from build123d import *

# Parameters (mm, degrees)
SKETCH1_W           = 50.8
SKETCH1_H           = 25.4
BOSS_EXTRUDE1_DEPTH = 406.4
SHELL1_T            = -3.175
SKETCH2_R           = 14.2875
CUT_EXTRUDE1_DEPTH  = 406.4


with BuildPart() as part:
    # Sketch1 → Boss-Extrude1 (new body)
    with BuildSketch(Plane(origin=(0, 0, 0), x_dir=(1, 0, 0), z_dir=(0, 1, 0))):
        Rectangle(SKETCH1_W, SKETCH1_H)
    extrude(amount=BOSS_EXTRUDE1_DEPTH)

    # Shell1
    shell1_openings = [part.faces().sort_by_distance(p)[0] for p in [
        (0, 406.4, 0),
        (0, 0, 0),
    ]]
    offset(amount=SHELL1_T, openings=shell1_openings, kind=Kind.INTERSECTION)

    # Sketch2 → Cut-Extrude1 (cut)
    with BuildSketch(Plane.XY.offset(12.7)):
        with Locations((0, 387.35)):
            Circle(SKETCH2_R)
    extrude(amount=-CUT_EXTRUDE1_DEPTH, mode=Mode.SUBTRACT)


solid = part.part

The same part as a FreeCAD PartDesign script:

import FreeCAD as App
import Part
import Sketcher

V = App.Vector
Q = App.Units.Quantity


def faces_at(feature, points):
    """Names of the faces that lie closest to the given points."""
    faces = feature.Shape.Faces
    near = lambda p: min(range(len(faces)), key=lambda i: faces[i].distToShape(Part.Vertex(*p))[0])
    return sorted({f"Face{near(p) + 1}" for p in points})

doc = App.newDocument("Part")
body = doc.addObject("PartDesign::Body", "Body")

sketch1 = body.newObject("Sketcher::SketchObject", "Sketch")
sketch1.AttachmentSupport = (doc.getObject("XZ_Plane"), [""])
sketch1.MapMode = "FlatFace"
sketch1.addGeometry([
    Part.LineSegment(V(-25, -13, 0), V(-25, 13, 0)),
    Part.LineSegment(V(-25, 13, 0), V(25, 13, 0)),
    Part.LineSegment(V(25, 13, 0), V(25, -13, 0)),
    Part.LineSegment(V(25, -13, 0), V(-25, -13, 0)),
], False)
sketch1.addConstraint([
    Sketcher.Constraint("Coincident", 0, 2, 1, 1),
    Sketcher.Constraint("Coincident", 1, 2, 2, 1),
    Sketcher.Constraint("Coincident", 2, 2, 3, 1),
    Sketcher.Constraint("Coincident", 3, 2, 0, 1),
    Sketcher.Constraint("Vertical", 0),
    Sketcher.Constraint("Horizontal", 1),
    Sketcher.Constraint("Vertical", 2),
    Sketcher.Constraint("Horizontal", 3),
    Sketcher.Constraint("Symmetric", 0, 2, 2, 2, -1, 1),
    Sketcher.Constraint("DistanceX", 1, 1, 1, 2, Q("2 in")),
    Sketcher.Constraint("DistanceY", 0, 1, 0, 2, Q("1 in")),
])
pad1 = body.newObject("PartDesign::Pad", "Pad")
pad1.Profile = sketch1
pad1.Length = Q("16 in")
pad1.Reversed = True
doc.recompute()

thickness = body.newObject("PartDesign::Thickness", "Thickness")
thickness.Base = (pad1, faces_at(pad1, [(0, 406.4, 0), (0, 0, 0)]))
thickness.Value = Q("0.125 in")
thickness.Reversed = True
thickness.Join = "Intersection"

sketch2 = body.newObject("Sketcher::SketchObject", "Sketch001")
sketch2.AttachmentSupport = (doc.getObject("XY_Plane"), [""])
sketch2.MapMode = "FlatFace"
sketch2.AttachmentOffset = App.Placement(V(0, 0, 0.5 * 25.4), App.Rotation())
sketch2.addGeometry(Part.Circle(V(0, 387, 0), V(0, 0, 1), 14), False)
sketch2.addConstraint([
    Sketcher.Constraint("PointOnObject", 0, 3, -2),
    Sketcher.Constraint("Diameter", 0, Q("1.125 in")),
    Sketcher.Constraint("DistanceY", -1, 1, 0, 3, Q("15.25 in")),
])
pocket1 = body.newObject("PartDesign::Pocket", "Pocket")
pocket1.Profile = sketch2
pocket1.Length = Q("16 in")

doc.recompute()
